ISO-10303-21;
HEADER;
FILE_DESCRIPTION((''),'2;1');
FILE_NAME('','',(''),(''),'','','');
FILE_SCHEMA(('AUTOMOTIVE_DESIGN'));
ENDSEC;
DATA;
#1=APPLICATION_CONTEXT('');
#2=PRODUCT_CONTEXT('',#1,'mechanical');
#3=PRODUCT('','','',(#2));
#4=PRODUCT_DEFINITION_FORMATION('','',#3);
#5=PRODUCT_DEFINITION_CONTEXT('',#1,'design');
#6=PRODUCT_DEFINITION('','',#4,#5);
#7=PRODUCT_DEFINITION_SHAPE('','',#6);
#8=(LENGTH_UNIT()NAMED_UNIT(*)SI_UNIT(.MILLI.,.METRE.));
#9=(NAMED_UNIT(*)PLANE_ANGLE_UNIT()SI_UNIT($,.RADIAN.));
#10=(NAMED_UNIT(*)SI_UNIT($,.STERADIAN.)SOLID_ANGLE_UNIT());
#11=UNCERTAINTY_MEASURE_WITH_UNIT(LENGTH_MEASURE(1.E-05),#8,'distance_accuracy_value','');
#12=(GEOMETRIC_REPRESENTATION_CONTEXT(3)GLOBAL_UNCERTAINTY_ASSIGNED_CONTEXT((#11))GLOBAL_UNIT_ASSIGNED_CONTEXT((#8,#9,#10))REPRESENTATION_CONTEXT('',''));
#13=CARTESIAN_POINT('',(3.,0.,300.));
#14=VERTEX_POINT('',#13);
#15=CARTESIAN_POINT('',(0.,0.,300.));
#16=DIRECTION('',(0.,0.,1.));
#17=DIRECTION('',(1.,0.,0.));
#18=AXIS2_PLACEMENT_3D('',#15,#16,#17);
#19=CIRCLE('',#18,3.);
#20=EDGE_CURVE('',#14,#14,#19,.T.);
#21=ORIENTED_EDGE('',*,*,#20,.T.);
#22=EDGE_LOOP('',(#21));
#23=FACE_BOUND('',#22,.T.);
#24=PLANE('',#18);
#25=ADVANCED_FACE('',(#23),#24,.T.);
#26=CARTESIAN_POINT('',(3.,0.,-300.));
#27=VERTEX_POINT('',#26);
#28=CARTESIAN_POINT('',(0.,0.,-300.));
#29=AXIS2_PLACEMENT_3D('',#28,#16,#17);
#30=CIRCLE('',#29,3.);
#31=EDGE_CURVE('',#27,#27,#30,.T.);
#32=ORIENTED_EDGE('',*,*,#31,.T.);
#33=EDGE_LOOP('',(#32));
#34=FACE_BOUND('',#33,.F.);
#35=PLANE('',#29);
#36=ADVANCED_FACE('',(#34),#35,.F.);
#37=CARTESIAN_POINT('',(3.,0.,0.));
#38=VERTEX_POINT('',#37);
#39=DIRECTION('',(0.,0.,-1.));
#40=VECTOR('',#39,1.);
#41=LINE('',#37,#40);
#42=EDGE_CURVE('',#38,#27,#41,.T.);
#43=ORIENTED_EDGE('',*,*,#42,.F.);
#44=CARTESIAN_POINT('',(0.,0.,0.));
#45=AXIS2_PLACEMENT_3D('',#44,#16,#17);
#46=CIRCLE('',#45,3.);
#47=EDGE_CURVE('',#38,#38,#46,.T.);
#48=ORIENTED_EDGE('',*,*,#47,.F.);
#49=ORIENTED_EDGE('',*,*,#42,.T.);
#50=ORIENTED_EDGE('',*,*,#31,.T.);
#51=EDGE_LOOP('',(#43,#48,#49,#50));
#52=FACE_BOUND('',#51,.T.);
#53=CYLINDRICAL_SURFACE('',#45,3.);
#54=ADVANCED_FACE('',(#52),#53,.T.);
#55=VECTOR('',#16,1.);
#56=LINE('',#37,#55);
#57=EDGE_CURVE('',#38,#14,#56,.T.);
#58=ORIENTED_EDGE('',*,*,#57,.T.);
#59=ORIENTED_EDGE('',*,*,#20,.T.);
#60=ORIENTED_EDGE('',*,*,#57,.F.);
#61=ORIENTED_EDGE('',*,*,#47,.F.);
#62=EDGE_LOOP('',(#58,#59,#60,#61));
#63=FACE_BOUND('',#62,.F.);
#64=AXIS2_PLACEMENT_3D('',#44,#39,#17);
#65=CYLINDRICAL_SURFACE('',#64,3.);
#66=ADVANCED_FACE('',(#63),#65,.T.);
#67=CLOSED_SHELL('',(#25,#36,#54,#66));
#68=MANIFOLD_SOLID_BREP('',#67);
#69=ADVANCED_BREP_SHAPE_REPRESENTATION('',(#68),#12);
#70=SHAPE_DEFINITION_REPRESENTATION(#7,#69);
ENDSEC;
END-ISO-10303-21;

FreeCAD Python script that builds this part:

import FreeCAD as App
import Part
import Sketcher
from FreeCAD import Vector
Q = App.Units.Quantity

doc = App.newDocument("Part")
params = doc.addObject("Spreadsheet::Sheet", "Params")
for row, (alias, value) in enumerate([
    ("sketch1_diameter", "6 mm"),
    ("pad1_length", "600 mm"),
], start=1):
    params.set(f"A{row}", alias)
    params.set(f"B{row}", "=" + value)
    params.setAlias(f"B{row}", alias)

body = doc.addObject("PartDesign::Body", "Body")

sketch1 = body.newObject("Sketcher::SketchObject", "Sketch")
sketch1.AttachmentSupport = (doc.getObject("XY_Plane"), [""])
sketch1.MapMode = "FlatFace"
sketch1.addGeometry(Part.Circle(Vector(0, 0, 0), Vector(0, 0, 1), 3), False)
sketch1.addConstraint([
    Sketcher.Constraint("Coincident", 0, 3, -1, 1),
    Sketcher.Constraint("Diameter", 0, Q("6 mm")),
])
sketch1.setExpression("Constraints[1]", "Params.sketch1_diameter")
pad1 = body.newObject("PartDesign::Pad", "Pad")
pad1.Profile = sketch1
pad1.setExpression("Length", "Params.pad1_length")
pad1.Midplane = True

doc.recompute()
